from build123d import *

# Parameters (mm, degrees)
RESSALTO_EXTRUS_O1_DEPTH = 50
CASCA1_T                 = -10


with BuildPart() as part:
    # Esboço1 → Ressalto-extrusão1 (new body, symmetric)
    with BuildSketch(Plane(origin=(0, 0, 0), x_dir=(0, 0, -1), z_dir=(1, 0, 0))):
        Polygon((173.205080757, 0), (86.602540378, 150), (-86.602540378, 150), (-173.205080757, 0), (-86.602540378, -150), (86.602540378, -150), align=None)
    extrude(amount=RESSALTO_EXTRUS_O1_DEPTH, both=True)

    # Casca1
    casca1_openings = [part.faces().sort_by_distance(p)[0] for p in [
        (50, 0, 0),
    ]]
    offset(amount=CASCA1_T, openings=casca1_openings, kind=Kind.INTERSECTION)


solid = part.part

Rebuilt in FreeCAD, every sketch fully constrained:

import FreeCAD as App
import Part
import Sketcher

V = App.Vector
Q = App.Units.Quantity


def faces_at(feature, points):
    """Names of the faces that lie closest to the given points."""
    faces = feature.Shape.Faces
    near = lambda p: min(range(len(faces)), key=lambda i: faces[i].distToShape(Part.Vertex(*p))[0])
    return sorted({f"Face{near(p) + 1}" for p in points})

doc = App.newDocument("Part")
params = doc.addObject("Spreadsheet::Sheet", "Params")
for row, (alias, value) in enumerate([
    ("pad1_length", "100 mm"),
    ("thickness_wall", "10 mm"),
], start=1):
    params.set(f"A{row}", alias)
    params.set(f"B{row}", "=" + value)
    params.setAlias(f"B{row}", alias)

body = doc.addObject("PartDesign::Body", "Body")

# Sketch on YZ plane
sketch1 = doc.addObject("Sketcher::SketchObject", "Sketch")
body.addObject(sketch1)
sketch1.AttachmentSupport = (doc.YZ_Plane, [""])
sketch1.MapMode = "FlatFace"
sketch1.addGeometry([
    Part.LineSegment(V(0, -173, 0), V(150, -87, 0)),  # 0
    Part.LineSegment(V(150, -87, 0), V(150, 87, 0)),  # 1
    Part.LineSegment(V(150, 87, 0), V(0, 173, 0)),  # 2
    Part.LineSegment(V(0, 173, 0), V(-150, 87, 0)),  # 3
    Part.LineSegment(V(-150, 87, 0), V(-150, -87, 0)),  # 4
    Part.LineSegment(V(-150, -87, 0), V(0, -173, 0)),  # 5
], False)
sketch1.addConstraint([
    Sketcher.Constraint("Coincident", 0, 2, 1, 1),
    Sketcher.Constraint("Coincident", 1, 2, 2, 1),
    Sketcher.Constraint("Coincident", 2, 2, 3, 1),
    Sketcher.Constraint("Coincident", 3, 2, 4, 1),
    Sketcher.Constraint("Coincident", 4, 2, 5, 1),
    Sketcher.Constraint("Coincident", 5, 2, 0, 1),
    Sketcher.Constraint("Vertical", 1),
    Sketcher.Constraint("Vertical", 4),
    Sketcher.Constraint("Symmetric", 0, 2, 3, 2, -1, 1),
    Sketcher.Constraint("Symmetric", 2, 2, 5, 2, -1, 1),
    Sketcher.Constraint("PointOnObject", 2, 2, -2),
    Sketcher.Constraint("Parallel", 2, 5),
    Sketcher.Constraint("Horizontal", 1, 2, 3, 2),
    Sketcher.Constraint("Angle", 0, Q("30 deg")),
    Sketcher.Constraint("DistanceX", -1, 1, 0, 2, 150.0),
    Sketcher.Constraint("DistanceY", 1, 1, 1, 2, 173.205081),
])
pad1 = doc.addObject("PartDesign::Pad", "Pad")
body.addObject(pad1)
pad1.Profile = sketch1
pad1.setExpression("Length", "Params.pad1_length")
pad1.Midplane = True
doc.recompute()

thickness = doc.addObject("PartDesign::Thickness", "Thickness")
body.addObject(thickness)
thickness.Base = (pad1, faces_at(pad1, [(50, 0, 0)]))
thickness.setExpression("Value", "Params.thickness_wall")
thickness.Reversed = True
thickness.Join = "Intersection"

doc.recompute()
